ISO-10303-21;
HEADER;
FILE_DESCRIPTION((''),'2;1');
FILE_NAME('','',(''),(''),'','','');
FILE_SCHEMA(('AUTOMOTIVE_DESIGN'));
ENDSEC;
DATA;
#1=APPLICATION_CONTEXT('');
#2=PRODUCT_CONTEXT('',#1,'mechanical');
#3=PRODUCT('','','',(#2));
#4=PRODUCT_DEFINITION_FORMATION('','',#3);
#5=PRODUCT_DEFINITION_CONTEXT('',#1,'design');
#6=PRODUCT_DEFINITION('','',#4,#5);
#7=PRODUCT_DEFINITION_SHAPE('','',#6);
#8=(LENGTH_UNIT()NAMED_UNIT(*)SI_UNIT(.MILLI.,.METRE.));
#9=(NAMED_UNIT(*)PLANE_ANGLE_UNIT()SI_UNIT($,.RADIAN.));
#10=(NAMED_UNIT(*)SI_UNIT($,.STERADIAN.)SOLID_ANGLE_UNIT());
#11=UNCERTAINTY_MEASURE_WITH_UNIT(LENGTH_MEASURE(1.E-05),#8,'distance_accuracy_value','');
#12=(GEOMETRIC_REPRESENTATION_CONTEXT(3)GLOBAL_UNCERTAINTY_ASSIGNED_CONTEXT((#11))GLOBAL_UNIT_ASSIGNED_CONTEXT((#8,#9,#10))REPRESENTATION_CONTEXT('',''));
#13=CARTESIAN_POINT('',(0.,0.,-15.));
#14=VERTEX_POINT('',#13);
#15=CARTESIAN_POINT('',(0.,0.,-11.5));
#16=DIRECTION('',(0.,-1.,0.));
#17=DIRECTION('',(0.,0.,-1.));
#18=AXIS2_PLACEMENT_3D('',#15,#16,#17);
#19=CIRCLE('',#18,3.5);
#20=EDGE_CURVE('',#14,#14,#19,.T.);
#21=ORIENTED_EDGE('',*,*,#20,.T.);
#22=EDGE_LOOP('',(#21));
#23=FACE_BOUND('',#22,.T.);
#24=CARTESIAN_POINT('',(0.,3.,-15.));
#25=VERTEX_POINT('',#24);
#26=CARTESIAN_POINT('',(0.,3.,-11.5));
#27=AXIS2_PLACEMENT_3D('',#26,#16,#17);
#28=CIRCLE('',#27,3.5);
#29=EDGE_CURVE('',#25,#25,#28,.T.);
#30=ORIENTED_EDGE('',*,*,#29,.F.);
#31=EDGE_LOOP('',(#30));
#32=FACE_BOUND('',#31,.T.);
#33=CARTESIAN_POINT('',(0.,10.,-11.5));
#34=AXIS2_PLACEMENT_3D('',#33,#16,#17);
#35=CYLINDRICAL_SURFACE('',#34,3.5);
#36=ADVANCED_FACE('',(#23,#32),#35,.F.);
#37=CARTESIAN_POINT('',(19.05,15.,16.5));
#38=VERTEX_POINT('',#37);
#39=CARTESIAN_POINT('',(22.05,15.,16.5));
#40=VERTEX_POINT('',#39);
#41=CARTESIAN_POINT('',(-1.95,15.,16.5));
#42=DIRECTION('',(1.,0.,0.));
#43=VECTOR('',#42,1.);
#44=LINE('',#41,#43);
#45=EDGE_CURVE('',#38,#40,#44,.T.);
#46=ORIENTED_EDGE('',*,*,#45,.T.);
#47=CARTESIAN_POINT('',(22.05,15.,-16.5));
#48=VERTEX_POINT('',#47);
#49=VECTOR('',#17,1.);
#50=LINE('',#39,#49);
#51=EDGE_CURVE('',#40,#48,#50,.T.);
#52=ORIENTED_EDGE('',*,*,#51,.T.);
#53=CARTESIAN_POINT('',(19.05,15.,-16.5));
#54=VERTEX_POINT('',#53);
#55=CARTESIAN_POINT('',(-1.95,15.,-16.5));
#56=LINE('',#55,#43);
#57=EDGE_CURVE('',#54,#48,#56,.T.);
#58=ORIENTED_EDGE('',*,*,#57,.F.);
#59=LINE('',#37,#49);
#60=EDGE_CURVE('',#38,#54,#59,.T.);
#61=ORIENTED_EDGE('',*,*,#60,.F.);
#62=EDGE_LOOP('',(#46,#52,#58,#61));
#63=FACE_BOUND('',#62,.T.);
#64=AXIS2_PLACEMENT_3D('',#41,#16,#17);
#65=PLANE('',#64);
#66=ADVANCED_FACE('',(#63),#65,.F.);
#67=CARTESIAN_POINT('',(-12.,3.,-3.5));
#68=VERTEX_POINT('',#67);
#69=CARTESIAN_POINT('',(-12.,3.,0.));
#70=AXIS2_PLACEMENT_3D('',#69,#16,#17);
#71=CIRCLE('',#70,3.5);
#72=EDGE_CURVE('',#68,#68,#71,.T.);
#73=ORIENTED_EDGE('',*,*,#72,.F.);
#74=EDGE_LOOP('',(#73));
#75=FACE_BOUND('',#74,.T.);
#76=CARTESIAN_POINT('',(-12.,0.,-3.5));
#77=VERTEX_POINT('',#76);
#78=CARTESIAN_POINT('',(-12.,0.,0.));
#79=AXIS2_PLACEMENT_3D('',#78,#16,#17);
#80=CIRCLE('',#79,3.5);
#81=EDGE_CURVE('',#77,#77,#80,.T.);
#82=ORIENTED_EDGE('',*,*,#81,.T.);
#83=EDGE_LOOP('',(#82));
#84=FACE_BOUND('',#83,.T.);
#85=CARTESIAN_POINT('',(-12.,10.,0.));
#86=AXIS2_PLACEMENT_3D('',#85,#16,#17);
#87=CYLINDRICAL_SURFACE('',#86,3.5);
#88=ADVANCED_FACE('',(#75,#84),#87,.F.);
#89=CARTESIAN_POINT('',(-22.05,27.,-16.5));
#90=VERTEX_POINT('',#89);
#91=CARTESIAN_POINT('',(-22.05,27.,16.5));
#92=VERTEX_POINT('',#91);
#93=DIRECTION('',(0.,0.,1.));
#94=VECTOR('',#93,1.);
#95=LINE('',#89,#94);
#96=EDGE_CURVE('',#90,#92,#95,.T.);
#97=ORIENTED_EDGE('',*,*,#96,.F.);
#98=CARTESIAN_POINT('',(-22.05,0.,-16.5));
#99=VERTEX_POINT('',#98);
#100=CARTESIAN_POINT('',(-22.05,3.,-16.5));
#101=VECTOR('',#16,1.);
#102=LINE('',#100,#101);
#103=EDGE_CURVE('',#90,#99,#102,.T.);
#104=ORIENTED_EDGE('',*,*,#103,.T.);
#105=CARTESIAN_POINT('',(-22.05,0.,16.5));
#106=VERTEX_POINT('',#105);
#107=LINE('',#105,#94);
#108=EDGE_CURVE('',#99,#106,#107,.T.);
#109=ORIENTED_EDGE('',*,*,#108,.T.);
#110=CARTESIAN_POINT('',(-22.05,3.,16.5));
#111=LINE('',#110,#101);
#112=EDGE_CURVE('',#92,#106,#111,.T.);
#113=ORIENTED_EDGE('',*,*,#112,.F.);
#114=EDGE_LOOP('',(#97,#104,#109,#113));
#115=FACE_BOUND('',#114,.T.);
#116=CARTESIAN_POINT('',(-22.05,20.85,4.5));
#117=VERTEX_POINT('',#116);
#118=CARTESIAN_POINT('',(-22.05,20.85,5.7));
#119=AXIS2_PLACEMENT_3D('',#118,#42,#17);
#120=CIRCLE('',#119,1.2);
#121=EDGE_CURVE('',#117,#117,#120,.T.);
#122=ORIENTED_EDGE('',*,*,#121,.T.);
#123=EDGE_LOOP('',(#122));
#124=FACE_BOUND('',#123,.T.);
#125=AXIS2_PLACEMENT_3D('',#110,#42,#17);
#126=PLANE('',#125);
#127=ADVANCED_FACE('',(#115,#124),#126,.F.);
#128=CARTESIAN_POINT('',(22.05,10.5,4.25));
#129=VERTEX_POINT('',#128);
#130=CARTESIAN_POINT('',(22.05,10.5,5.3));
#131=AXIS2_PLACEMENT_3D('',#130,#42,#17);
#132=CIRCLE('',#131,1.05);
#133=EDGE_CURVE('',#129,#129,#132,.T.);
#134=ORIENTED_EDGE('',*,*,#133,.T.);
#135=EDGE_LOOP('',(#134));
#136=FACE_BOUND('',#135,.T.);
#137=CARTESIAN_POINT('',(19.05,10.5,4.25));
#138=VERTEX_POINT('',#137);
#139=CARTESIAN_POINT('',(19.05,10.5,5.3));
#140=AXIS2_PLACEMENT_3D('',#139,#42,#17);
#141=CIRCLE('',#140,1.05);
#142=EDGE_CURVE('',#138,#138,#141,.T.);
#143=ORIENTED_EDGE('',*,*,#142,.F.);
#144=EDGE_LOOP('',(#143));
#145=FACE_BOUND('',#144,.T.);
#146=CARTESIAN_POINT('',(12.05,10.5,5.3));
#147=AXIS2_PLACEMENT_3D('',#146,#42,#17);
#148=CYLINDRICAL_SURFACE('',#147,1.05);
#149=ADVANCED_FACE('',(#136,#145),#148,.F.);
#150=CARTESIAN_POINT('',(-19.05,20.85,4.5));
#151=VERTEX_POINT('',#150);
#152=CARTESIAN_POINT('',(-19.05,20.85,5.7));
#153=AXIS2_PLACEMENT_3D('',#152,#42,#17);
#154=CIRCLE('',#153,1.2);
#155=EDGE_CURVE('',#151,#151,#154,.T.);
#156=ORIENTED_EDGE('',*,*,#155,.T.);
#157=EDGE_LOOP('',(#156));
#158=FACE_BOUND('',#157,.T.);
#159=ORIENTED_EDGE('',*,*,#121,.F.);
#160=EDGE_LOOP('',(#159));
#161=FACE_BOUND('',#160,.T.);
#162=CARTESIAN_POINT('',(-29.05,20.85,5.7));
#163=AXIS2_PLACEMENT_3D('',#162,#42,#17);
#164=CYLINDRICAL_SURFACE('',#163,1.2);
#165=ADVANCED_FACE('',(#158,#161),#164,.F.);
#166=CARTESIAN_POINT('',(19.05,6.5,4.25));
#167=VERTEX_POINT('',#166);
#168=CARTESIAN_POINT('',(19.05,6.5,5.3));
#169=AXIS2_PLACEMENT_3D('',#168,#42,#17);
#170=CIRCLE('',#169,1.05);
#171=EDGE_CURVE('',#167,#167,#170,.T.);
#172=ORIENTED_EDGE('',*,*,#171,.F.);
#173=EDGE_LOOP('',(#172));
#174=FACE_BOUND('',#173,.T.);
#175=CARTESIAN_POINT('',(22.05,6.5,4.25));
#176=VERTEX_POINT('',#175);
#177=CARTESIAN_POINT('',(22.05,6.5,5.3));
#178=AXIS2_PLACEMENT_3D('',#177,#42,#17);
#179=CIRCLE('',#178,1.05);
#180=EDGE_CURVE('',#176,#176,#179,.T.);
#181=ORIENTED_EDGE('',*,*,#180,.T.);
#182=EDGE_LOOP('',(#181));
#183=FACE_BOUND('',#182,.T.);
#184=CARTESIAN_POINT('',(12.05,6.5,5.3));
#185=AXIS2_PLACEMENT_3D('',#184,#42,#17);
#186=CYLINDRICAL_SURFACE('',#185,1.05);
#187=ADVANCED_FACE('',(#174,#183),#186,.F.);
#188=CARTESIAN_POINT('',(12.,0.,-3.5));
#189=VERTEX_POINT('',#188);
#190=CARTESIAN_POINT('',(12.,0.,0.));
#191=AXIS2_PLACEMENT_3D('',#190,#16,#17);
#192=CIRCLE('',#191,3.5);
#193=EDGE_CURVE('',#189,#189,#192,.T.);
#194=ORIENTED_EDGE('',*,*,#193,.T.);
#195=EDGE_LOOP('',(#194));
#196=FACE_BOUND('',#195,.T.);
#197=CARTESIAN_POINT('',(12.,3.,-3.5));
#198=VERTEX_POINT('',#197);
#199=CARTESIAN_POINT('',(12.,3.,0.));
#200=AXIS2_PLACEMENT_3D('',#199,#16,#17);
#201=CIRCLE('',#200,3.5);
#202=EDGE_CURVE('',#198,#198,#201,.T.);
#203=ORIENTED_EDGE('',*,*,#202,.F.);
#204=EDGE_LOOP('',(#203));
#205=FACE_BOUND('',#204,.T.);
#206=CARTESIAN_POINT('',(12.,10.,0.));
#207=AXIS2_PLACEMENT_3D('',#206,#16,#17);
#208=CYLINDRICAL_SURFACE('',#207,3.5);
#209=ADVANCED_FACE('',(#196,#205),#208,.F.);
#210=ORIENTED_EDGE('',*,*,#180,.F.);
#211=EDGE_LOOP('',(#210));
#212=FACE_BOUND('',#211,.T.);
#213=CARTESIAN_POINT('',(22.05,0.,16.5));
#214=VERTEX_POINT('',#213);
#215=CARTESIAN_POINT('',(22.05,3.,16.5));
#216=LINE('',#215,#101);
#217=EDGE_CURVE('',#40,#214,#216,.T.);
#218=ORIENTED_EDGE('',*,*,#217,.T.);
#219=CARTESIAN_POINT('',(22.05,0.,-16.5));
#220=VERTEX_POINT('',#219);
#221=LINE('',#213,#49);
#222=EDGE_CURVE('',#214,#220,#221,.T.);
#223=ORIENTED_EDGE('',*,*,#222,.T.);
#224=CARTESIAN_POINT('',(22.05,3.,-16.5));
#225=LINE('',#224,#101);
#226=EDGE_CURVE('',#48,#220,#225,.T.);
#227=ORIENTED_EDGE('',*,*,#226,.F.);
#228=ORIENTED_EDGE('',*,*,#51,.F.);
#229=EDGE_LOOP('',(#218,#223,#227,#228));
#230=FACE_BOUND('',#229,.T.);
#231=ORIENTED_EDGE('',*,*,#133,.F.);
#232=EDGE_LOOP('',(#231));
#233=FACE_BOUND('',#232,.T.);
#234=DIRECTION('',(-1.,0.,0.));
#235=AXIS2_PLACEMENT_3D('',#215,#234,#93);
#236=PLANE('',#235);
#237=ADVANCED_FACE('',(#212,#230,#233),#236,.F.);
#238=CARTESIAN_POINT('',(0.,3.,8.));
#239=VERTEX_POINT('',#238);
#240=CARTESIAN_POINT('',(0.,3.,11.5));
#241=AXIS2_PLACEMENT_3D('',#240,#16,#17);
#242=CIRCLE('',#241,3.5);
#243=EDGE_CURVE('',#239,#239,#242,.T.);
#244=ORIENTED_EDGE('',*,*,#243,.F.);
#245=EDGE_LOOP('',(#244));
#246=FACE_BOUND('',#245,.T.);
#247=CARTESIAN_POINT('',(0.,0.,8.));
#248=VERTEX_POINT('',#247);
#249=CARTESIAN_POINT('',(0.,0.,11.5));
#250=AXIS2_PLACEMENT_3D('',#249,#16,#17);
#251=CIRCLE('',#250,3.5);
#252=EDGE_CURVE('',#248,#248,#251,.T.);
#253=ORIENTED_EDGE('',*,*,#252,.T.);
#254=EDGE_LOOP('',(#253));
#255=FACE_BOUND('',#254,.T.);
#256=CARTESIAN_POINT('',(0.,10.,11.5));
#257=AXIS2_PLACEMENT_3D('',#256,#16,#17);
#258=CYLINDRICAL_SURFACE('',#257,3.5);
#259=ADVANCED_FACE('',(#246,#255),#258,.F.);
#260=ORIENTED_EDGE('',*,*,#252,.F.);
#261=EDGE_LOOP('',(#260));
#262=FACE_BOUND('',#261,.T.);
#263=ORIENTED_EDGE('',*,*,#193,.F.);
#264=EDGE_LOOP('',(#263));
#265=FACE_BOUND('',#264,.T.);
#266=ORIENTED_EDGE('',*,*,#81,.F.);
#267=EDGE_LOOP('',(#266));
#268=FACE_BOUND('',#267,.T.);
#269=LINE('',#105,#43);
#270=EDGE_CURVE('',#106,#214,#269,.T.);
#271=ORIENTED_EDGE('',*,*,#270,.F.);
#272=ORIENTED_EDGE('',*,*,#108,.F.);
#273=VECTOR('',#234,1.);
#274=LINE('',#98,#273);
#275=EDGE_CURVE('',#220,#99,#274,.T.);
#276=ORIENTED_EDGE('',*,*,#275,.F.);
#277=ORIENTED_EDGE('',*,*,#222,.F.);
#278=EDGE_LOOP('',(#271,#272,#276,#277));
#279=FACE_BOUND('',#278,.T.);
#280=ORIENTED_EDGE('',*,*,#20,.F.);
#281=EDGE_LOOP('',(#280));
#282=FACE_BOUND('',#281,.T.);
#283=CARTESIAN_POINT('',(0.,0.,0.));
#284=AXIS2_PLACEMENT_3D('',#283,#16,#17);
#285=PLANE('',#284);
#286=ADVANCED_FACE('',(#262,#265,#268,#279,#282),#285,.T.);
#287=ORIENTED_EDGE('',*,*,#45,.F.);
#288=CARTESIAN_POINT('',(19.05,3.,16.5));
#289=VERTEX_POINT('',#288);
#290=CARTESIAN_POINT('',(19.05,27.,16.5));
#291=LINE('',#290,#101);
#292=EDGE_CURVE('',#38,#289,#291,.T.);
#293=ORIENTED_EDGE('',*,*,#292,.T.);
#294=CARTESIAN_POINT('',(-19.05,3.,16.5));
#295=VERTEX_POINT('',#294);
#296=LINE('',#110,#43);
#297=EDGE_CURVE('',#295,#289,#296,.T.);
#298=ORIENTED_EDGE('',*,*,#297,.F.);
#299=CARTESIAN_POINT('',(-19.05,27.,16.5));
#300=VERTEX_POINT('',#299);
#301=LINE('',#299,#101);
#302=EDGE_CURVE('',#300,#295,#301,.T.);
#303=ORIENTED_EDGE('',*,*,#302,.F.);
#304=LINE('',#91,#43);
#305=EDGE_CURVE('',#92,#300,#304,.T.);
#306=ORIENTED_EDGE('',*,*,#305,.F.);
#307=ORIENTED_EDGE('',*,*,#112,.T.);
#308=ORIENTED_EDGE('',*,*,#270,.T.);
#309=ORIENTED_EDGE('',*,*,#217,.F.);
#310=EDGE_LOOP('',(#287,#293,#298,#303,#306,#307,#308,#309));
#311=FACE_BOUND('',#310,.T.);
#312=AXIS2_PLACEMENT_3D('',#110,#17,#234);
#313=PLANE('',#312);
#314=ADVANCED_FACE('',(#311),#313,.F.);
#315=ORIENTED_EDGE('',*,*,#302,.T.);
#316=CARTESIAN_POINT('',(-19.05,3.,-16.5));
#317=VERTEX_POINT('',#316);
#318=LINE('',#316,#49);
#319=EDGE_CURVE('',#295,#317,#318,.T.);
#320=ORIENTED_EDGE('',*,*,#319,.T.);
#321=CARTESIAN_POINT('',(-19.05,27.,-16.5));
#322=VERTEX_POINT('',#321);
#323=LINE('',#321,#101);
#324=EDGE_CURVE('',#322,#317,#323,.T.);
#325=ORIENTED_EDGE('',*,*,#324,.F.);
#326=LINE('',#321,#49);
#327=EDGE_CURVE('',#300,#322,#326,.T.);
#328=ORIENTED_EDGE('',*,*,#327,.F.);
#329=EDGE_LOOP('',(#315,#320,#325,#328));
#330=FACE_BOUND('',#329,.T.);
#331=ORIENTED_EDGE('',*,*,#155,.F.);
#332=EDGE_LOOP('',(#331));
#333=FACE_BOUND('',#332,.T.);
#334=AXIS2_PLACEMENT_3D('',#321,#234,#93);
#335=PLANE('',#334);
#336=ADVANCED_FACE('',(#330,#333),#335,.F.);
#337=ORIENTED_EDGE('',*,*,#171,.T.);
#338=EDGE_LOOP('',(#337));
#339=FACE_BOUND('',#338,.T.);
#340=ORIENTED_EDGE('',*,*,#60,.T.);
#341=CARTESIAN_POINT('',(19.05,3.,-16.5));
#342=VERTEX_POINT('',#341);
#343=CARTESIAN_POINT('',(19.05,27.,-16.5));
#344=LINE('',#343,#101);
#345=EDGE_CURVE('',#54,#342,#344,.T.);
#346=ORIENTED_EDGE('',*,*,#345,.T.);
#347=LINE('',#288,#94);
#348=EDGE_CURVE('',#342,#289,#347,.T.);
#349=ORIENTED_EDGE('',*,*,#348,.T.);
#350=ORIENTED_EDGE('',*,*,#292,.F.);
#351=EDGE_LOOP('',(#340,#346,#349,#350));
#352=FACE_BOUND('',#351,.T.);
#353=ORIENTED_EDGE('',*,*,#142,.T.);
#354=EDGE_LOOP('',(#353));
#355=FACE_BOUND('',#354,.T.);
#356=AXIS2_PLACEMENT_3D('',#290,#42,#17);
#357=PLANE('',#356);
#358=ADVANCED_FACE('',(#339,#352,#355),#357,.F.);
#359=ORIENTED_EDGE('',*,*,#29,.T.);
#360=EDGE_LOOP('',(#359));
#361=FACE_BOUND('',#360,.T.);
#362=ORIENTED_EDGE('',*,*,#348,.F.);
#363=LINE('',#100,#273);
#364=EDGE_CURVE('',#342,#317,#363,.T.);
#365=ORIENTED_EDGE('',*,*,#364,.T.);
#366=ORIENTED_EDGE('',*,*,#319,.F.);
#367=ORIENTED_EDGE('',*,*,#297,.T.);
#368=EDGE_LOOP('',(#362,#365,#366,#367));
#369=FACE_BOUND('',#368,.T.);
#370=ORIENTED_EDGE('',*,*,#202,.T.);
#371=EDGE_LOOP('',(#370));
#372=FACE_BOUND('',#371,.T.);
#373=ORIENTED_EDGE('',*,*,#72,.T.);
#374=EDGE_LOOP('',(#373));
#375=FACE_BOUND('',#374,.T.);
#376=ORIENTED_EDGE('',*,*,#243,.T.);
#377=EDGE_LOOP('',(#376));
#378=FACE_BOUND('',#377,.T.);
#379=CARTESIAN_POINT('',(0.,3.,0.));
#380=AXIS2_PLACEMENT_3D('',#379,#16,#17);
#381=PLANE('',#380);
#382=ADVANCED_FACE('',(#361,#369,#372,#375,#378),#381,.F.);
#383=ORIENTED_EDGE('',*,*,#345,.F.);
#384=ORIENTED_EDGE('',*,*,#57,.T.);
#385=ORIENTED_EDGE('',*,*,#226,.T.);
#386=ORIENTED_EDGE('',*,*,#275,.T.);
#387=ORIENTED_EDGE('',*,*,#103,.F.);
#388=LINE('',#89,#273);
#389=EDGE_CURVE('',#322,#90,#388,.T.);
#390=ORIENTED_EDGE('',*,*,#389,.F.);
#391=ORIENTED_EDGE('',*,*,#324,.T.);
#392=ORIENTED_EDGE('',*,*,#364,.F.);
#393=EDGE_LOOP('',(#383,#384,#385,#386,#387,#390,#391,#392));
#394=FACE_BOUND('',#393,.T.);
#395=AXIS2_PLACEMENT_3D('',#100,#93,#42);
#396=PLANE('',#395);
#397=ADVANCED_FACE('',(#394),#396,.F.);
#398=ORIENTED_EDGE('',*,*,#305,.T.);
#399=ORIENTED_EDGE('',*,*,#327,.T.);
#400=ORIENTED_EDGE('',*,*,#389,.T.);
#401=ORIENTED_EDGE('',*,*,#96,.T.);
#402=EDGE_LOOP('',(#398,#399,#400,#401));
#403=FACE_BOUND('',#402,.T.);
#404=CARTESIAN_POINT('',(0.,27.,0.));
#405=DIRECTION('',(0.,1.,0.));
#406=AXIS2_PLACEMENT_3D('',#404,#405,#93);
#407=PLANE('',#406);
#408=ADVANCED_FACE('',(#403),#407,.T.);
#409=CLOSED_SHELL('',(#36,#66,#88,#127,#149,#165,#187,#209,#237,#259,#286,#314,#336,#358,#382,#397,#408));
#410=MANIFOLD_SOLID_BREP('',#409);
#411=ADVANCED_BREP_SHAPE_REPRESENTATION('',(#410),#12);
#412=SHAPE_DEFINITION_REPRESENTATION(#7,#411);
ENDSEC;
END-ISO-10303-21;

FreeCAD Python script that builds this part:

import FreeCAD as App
import Part
import Sketcher
Q = App.Units.Quantity

doc = App.newDocument("Part")
body = doc.addObject("PartDesign::Body", "Body")

# Sketch on XZ plane
sketch1 = body.newObject("Sketcher::SketchObject", "Sketch")
sketch1.AttachmentSupport = (doc.getObject("XZ_Plane"), [""])
sketch1.MapMode = "FlatFace"
sketch1.addGeometry([
    Part.LineSegment(App.Vector(-22.05, -16.5, 0), App.Vector(-22.05, 16.5, 0)),
    Part.LineSegment(App.Vector(-22.05, 16.5, 0), App.Vector(22.05, 16.5, 0)),
    Part.LineSegment(App.Vector(22.05, 16.5, 0), App.Vector(22.05, -16.5, 0)),
    Part.LineSegment(App.Vector(22.05, -16.5, 0), App.Vector(-22.05, -16.5, 0)),
], False)
sketch1.addConstraint([
    Sketcher.Constraint("Coincident", 0, 2, 1, 1),
    Sketcher.Constraint("Coincident", 1, 2, 2, 1),
    Sketcher.Constraint("Coincident", 2, 2, 3, 1),
    Sketcher.Constraint("Coincident", 3, 2, 0, 1),
    Sketcher.Constraint("Vertical", 0),
    Sketcher.Constraint("Horizontal", 1),
    Sketcher.Constraint("Vertical", 2),
    Sketcher.Constraint("Horizontal", 3),
    Sketcher.Constraint("Symmetric", 0, 2, 2, 2, -1, 1),
    Sketcher.Constraint("DistanceY", 0, 1, 0, 2, Q("33 mm")),
    Sketcher.Constraint("DistanceX", 1, 1, 1, 2, Q("44.1 mm")),
])
pad1 = body.newObject("PartDesign::Pad", "Pad")
pad1.Profile = sketch1
pad1.Length = 3
pad1.Reversed = True

# Sketch on XZ plane
sketch2 = body.newObject("Sketcher::SketchObject", "Sketch001")
sketch2.AttachmentSupport = (doc.getObject("XZ_Plane"), [""])
sketch2.MapMode = "FlatFace"
sketch2.AttachmentOffset = App.Placement(App.Vector(0, 0, -3), App.Rotation())
sketch2.addGeometry([
    Part.LineSegment(App.Vector(-22.05, -16.5, 0), App.Vector(-22.05, 16.5, 0)),  # 0
    Part.LineSegment(App.Vector(-22.05, 16.5, 0), App.Vector(-19.05, 16.5, 0)),  # 1
    Part.LineSegment(App.Vector(-19.05, 16.5, 0), App.Vector(-19.05, -16.5, 0)),  # 2
    Part.LineSegment(App.Vector(-19.05, -16.5, 0), App.Vector(-22.05, -16.5, 0)),  # 3
    Part.LineSegment(App.Vector(19.05, -16.5, 0), App.Vector(19.05, 16.5, 0)),  # 4
    Part.LineSegment(App.Vector(19.05, 16.5, 0), App.Vector(22.05, 16.5, 0)),  # 5
    Part.LineSegment(App.Vector(22.05, 16.5, 0), App.Vector(22.05, -16.5, 0)),  # 6
    Part.LineSegment(App.Vector(22.05, -16.5, 0), App.Vector(19.05, -16.5, 0)),  # 7
], False)
sketch2.addConstraint([
    Sketcher.Constraint("Coincident", 0, 2, 1, 1),
    Sketcher.Constraint("Coincident", 1, 2, 2, 1),
    Sketcher.Constraint("Coincident", 2, 2, 3, 1),
    Sketcher.Constraint("Coincident", 3, 2, 0, 1),
    Sketcher.Constraint("Coincident", 4, 2, 5, 1),
    Sketcher.Constraint("Coincident", 5, 2, 6, 1),
    Sketcher.Constraint("Coincident", 6, 2, 7, 1),
    Sketcher.Constraint("Coincident", 7, 2, 4, 1),
    Sketcher.Constraint("Vertical", 0),
    Sketcher.Constraint("Horizontal", 1),
    Sketcher.Constraint("Vertical", 2),
    Sketcher.Constraint("Horizontal", 3),
    Sketcher.Constraint("Vertical", 4),
    Sketcher.Constraint("Horizontal", 5),
    Sketcher.Constraint("Vertical", 6),
    Sketcher.Constraint("Horizontal", 7),
    Sketcher.Constraint("Symmetric", 2, 2, 4, 2, -1, 1),
    Sketcher.Constraint("Symmetric", 0, 2, 6, 2, -1, 1),
    Sketcher.Constraint("Horizontal", 1, 2, 4, 2),
    Sketcher.Constraint("DistanceX", 1, 1, 1, 2, Q("3 mm")),
    Sketcher.Constraint("DistanceY", 0, 1, 0, 2, Q("33 mm")),
    Sketcher.Constraint("DistanceX", 1, 2, 4, 2, Q("38.1 mm")),
])
pad2 = body.newObject("PartDesign::Pad", "Pad001")
pad2.Profile = sketch2
pad2.Length = 24
pad2.Reversed = True

# Sketch on YZ plane
sketch3 = body.newObject("Sketcher::SketchObject", "Sketch002")
sketch3.AttachmentSupport = (doc.getObject("YZ_Plane"), [""])
sketch3.MapMode = "FlatFace"
sketch3.AttachmentOffset = App.Placement(App.Vector(0, 0, 22.05), App.Rotation())
sketch3.addGeometry([
    Part.LineSegment(App.Vector(27, 16.5, 0), App.Vector(15, 16.5, 0)),
    Part.LineSegment(App.Vector(15, 16.5, 0), App.Vector(15, -16.5, 0)),
    Part.LineSegment(App.Vector(15, -16.5, 0), App.Vector(27, -16.5, 0)),
    Part.LineSegment(App.Vector(27, -16.5, 0), App.Vector(27, 16.5, 0)),
], False)
sketch3.addConstraint([
    Sketcher.Constraint("Coincident", 0, 2, 1, 1),
    Sketcher.Constraint("Coincident", 1, 2, 2, 1),
    Sketcher.Constraint("Coincident", 2, 2, 3, 1),
    Sketcher.Constraint("Coincident", 3, 2, 0, 1),
    Sketcher.Constraint("Horizontal", 0),
    Sketcher.Constraint("Vertical", 1),
    Sketcher.Constraint("Horizontal", 2),
    Sketcher.Constraint("Vertical", 3),
    Sketcher.Constraint("DistanceX", 0, 2, 0, 1, Q("12 mm")),
    Sketcher.Constraint("DistanceY", 1, 2, 1, 1, Q("33 mm")),
    Sketcher.Constraint("DistanceX", -1, 1, 0, 2, Q("15 mm")),
    Sketcher.Constraint("DistanceY", -1, 1, 0, 2, Q("16.5 mm")),
])
pocket1 = body.newObject("PartDesign::Pocket", "Pocket")
pocket1.Profile = sketch3
pocket1.Length = 24

# Sketch on YZ plane
sketch4 = body.newObject("Sketcher::SketchObject", "Sketch003")
sketch4.AttachmentSupport = (doc.getObject("YZ_Plane"), [""])
sketch4.MapMode = "FlatFace"
sketch4.AttachmentOffset = App.Placement(App.Vector(0, 0, -19.05), App.Rotation())
sketch4.addGeometry(Part.Circle(App.Vector(20.85, 5.7, 0), App.Vector(0, 0, 1), 1.2), False)
sketch4.addConstraint([
    Sketcher.Constraint("Diameter", 0, Q("2.4 mm")),
    Sketcher.Constraint("DistanceY", -1, 1, 0, 3, Q("5.7 mm")),
    Sketcher.Constraint("DistanceX", -1, 1, 0, 3, Q("20.85 mm")),
])
pocket2 = body.newObject("PartDesign::Pocket", "Pocket001")
pocket2.Profile = sketch4
pocket2.Length = 10

# Sketch on YZ plane
sketch5 = body.newObject("Sketcher::SketchObject", "Sketch004")
sketch5.AttachmentSupport = (doc.getObject("YZ_Plane"), [""])
sketch5.MapMode = "FlatFace"
sketch5.AttachmentOffset = App.Placement(App.Vector(0, 0, 22.05), App.Rotation())
sketch5.addGeometry([
    Part.Circle(App.Vector(10.5, 5.3, 0), App.Vector(0, 0, 1), 1.05),
    Part.Circle(App.Vector(6.5, 5.3, 0), App.Vector(0, 0, 1), 1.05),
], False)
sketch5.addConstraint([
    Sketcher.Constraint("Equal", 0, 1),
    Sketcher.Constraint("Horizontal", 0, 3, 1, 3),
    Sketcher.Constraint("Diameter", 0, Q("2.1 mm")),
    Sketcher.Constraint("DistanceX", 1, 3, 0, 3, Q("4 mm")),
    Sketcher.Constraint("DistanceX", -1, 1, 0, 3, Q("10.5 mm")),
    Sketcher.Constraint("DistanceY", -1, 1, 0, 3, Q("5.3 mm")),
])
pocket3 = body.newObject("PartDesign::Pocket", "Pocket002")
pocket3.Profile = sketch5
pocket3.Length = 10

# Sketch on XZ plane
sketch6 = body.newObject("Sketcher::SketchObject", "Sketch005")
sketch6.AttachmentSupport = (doc.getObject("XZ_Plane"), [""])
sketch6.MapMode = "FlatFace"
sketch6.addGeometry([
    Part.Circle(App.Vector(-12, 0, 0), App.Vector(0, 0, 1), 3.5),
    Part.Circle(App.Vector(0, -11.5, 0), App.Vector(0, 0, 1), 3.5),
    Part.Circle(App.Vector(12, 0, 0), App.Vector(0, 0, 1), 3.5),
    Part.Circle(App.Vector(0, 11.5, 0), App.Vector(0, 0, 1), 3.5),
], False)
sketch6.addConstraint([
    Sketcher.Constraint("Equal", 0, 1),
    Sketcher.Constraint("Equal", 1, 2),
    Sketcher.Constraint("Equal", 2, 3),
    Sketcher.Constraint("Symmetric", 0, 3, 2, 3, -1, 1),
    Sketcher.Constraint("Symmetric", 1, 3, 3, 3, -1, 1),
    Sketcher.Constraint("PointOnObject", 0, 3, -1),
    Sketcher.Constraint("PointOnObject", 1, 3, -2),
    Sketcher.Constraint("Diameter", 0, Q("7 mm")),
    Sketcher.Constraint("DistanceX", 0, 3, -1, 1, Q("12 mm")),
    Sketcher.Constraint("DistanceY", 1, 3, 3, 3, Q("23 mm")),
])
pocket4 = body.newObject("PartDesign::Pocket", "Pocket003")
pocket4.Profile = sketch6
pocket4.Length = 10

doc.recompute()
